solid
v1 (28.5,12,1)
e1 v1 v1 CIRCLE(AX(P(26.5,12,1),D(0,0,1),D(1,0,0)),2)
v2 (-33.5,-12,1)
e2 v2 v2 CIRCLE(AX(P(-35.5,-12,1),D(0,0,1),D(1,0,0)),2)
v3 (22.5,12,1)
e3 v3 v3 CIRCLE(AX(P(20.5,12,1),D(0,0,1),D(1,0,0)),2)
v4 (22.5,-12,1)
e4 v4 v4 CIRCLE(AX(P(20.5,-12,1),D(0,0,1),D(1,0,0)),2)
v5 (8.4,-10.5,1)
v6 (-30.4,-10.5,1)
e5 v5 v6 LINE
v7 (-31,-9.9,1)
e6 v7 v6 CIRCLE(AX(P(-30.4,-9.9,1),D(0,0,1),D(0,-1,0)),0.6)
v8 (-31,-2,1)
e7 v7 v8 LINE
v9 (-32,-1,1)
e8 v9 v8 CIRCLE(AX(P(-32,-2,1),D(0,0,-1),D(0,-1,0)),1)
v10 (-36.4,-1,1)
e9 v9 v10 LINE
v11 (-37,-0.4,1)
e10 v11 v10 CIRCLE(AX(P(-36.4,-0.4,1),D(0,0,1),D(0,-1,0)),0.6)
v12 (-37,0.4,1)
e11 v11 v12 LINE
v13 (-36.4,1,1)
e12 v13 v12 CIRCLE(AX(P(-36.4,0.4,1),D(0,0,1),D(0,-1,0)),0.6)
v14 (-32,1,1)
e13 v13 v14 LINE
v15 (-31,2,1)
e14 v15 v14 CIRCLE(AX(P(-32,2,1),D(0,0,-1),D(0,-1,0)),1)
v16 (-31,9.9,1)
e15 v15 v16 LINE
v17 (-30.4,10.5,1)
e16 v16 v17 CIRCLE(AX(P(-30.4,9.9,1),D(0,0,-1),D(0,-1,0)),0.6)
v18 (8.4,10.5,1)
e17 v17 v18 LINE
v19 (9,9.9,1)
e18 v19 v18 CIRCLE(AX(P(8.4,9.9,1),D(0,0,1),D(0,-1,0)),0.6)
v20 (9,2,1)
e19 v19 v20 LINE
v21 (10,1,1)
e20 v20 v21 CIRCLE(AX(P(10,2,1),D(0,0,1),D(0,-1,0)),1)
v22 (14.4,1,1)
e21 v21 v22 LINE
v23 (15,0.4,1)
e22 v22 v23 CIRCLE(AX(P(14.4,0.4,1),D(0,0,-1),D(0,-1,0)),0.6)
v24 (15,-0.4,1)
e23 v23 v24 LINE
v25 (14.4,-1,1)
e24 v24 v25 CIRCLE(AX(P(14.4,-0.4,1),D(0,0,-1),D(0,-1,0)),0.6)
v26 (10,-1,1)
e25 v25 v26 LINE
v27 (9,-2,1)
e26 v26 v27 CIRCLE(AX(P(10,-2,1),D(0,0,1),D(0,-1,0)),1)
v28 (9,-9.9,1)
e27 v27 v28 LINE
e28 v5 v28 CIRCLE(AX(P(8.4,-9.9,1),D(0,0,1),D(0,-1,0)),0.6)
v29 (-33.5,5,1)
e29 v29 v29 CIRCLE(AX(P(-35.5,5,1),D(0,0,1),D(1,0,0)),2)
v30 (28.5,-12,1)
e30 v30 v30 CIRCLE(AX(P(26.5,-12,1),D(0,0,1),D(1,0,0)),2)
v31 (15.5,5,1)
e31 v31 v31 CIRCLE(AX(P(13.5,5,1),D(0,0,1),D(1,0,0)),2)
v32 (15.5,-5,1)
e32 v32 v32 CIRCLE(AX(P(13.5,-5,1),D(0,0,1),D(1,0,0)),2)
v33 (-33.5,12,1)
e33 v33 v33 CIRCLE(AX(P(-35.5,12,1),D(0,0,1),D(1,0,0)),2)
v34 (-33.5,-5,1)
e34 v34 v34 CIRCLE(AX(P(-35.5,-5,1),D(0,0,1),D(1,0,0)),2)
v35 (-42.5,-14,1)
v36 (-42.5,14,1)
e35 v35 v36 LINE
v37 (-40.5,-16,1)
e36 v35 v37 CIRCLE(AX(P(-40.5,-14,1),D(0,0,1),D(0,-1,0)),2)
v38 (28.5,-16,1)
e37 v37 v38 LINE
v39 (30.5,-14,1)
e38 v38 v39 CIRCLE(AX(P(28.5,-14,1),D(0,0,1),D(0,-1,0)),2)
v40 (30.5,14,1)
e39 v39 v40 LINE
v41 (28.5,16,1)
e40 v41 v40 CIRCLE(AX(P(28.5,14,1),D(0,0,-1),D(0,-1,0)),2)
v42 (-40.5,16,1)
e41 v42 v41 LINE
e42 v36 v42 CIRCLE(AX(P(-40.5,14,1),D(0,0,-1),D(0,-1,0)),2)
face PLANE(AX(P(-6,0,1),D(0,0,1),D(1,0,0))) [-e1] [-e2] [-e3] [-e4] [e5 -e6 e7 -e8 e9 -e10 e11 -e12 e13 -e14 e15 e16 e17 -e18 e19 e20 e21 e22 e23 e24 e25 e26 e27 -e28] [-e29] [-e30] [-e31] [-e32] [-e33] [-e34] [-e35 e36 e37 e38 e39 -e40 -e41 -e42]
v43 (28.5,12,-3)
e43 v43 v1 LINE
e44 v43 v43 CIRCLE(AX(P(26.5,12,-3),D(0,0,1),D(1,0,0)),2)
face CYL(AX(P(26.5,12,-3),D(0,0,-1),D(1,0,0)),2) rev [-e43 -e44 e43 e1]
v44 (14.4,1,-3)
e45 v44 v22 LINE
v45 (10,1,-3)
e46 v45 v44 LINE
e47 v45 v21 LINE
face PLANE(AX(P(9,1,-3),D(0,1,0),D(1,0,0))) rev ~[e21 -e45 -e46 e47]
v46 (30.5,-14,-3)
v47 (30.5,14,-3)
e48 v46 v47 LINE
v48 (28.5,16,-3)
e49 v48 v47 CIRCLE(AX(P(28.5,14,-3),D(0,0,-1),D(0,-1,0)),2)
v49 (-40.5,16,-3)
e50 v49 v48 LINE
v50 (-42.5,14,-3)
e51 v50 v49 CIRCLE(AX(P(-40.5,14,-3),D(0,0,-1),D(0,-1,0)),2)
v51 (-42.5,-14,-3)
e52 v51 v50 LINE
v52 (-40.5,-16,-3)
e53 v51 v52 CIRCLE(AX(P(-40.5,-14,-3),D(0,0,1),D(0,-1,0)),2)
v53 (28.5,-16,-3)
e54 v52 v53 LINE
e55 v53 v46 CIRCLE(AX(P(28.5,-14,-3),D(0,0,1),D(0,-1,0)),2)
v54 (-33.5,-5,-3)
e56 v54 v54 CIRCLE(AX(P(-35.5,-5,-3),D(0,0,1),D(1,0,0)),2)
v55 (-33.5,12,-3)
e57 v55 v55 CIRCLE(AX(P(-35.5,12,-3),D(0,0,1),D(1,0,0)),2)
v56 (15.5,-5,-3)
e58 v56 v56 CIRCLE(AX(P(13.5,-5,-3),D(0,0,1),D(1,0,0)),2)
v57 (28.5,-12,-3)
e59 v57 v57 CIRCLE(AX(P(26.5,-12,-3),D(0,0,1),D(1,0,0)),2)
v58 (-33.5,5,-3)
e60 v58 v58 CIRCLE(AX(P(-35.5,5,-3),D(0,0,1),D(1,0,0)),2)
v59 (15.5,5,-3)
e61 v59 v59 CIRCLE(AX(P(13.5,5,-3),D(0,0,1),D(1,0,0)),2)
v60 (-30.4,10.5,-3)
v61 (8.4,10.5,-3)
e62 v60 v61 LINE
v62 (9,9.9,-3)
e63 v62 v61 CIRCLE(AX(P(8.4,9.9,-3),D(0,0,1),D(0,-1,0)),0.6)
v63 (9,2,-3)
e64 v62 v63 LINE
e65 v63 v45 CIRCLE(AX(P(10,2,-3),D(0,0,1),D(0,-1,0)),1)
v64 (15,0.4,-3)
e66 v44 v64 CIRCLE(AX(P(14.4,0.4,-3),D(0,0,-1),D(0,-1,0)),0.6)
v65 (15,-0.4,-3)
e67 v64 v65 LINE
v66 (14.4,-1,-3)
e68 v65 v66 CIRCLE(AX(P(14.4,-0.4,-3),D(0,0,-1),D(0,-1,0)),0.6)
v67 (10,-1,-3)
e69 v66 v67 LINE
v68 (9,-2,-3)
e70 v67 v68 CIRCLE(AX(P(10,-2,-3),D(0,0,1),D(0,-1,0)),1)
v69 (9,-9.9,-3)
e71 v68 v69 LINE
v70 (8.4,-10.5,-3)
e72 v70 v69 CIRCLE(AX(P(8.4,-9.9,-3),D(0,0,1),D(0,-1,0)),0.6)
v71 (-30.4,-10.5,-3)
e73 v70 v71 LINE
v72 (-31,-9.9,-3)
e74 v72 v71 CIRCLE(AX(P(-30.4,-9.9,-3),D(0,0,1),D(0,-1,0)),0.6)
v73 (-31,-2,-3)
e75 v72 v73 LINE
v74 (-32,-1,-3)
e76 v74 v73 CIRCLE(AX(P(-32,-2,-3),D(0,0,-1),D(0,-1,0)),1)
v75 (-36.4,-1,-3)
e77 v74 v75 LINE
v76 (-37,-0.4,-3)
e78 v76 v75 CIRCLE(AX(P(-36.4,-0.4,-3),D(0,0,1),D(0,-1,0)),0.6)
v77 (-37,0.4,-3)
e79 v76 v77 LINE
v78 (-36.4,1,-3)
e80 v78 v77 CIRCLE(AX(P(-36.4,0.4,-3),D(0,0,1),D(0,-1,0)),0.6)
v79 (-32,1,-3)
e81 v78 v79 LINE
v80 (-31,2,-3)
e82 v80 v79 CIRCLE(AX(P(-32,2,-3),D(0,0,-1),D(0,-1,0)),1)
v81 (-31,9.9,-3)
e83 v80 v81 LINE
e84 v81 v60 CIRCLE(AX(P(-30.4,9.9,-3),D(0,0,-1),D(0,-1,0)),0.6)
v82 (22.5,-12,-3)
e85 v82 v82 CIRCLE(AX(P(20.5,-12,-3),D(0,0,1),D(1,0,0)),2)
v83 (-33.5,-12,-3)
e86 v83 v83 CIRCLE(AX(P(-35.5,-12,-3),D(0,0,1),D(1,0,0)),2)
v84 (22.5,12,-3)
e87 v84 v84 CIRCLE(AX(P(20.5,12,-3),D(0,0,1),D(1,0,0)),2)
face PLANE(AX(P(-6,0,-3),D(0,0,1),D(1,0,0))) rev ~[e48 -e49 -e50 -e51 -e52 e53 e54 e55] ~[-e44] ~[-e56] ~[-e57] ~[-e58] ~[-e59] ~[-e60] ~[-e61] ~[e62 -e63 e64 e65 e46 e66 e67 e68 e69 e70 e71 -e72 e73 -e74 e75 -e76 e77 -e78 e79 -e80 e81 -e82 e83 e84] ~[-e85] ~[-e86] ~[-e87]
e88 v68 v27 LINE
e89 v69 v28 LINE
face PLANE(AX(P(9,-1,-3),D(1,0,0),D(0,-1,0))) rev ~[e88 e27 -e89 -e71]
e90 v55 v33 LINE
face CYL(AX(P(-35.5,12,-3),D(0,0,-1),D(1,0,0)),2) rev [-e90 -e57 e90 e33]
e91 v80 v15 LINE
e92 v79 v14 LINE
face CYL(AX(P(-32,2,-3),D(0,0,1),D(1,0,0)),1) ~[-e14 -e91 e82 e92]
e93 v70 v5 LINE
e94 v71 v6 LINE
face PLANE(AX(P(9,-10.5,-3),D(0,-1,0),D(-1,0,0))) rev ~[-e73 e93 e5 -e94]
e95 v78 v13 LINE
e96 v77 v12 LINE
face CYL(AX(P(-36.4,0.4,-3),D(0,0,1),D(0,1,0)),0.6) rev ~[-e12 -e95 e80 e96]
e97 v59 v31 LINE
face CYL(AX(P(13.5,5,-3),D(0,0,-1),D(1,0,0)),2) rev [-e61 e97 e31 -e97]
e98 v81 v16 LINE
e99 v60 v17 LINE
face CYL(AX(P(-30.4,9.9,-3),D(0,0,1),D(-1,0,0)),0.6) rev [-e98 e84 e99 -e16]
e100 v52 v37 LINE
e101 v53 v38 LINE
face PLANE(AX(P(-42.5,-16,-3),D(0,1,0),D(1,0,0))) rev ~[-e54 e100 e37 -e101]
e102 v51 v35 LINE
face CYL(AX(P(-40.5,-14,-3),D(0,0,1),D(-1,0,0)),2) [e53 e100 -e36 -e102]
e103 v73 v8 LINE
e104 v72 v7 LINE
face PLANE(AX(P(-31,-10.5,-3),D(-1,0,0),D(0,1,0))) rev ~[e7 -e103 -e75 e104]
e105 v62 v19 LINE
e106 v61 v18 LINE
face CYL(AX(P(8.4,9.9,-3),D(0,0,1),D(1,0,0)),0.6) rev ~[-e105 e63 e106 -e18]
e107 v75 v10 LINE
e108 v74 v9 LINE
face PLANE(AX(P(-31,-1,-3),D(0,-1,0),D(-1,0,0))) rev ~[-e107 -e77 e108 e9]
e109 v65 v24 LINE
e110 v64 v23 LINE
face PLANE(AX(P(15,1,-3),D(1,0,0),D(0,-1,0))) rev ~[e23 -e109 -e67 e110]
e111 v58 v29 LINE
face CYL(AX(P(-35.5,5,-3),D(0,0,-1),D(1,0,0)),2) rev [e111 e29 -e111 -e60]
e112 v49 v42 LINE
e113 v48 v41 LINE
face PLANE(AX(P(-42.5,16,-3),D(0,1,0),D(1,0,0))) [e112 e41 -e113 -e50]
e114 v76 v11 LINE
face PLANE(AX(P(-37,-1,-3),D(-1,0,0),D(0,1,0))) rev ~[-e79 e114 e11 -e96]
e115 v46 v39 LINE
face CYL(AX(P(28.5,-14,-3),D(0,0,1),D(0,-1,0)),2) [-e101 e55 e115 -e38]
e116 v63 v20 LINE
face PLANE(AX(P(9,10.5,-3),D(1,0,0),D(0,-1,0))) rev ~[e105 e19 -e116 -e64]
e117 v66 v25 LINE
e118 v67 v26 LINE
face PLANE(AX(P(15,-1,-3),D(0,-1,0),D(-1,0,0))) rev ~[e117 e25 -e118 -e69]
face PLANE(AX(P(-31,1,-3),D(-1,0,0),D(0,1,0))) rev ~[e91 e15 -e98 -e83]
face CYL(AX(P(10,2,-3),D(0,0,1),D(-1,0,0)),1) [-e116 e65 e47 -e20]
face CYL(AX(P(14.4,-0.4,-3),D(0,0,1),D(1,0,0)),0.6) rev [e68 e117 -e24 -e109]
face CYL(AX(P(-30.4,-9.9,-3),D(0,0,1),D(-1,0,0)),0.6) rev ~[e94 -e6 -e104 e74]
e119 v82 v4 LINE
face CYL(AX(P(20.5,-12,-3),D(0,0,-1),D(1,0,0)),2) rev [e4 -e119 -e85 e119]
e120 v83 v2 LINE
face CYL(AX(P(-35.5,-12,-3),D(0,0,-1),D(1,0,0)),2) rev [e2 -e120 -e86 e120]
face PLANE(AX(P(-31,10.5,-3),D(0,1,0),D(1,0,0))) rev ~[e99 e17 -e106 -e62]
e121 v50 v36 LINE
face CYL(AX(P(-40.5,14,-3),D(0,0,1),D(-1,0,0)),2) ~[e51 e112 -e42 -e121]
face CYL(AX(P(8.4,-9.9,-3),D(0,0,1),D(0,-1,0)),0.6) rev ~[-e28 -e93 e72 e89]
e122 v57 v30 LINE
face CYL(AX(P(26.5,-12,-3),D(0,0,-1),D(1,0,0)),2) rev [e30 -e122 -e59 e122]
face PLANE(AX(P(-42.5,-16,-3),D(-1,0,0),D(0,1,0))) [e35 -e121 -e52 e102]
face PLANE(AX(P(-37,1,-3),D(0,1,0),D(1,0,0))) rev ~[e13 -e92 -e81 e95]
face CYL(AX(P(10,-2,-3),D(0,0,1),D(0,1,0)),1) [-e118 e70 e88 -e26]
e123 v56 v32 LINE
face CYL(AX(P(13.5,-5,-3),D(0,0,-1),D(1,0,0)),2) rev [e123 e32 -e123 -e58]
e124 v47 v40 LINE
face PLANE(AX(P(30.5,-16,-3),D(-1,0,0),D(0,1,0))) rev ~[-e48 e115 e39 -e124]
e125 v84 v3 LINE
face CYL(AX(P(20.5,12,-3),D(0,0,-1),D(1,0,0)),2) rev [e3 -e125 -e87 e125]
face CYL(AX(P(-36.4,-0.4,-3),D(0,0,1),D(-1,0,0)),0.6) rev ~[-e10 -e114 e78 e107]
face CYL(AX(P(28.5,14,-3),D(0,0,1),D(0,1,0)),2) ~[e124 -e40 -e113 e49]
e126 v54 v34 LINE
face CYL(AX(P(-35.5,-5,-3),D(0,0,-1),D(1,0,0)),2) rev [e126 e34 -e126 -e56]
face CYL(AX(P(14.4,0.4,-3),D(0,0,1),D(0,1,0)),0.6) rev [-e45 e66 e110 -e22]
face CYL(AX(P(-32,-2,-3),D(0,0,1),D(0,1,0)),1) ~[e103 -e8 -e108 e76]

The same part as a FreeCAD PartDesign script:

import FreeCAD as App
import Part
import Sketcher
from FreeCAD import Vector


def edges_at(feature, points):
    """Names of the edges that pass closest to the given points."""
    edges = feature.Shape.Edges
    near = lambda p: min(range(len(edges)), key=lambda i: edges[i].distToShape(Part.Vertex(*p))[0])
    return sorted({f"Edge{near(p) + 1}" for p in points})

doc = App.newDocument("Part")
params = doc.addObject("Spreadsheet::Sheet", "Params")
for row, (alias, value) in enumerate([
    ("sketch1_diameter", "4 mm"),
    ("sketch1_width", "73 mm"),
    ("sketch1_width2", "40 mm"),
    ("sketch1_width3", "6 mm"),
    ("sketch1_height", "32 mm"),
    ("pad1_length", "4 mm"),
    ("fillet_radius", "0.6 mm"),
    ("fillet2_radius", "1 mm"),
    ("fillet3_radius", "0.6 mm"),
    ("fillet4_radius", "2 mm"),
], start=1):
    params.set(f"A{row}", alias)
    params.set(f"B{row}", "=" + value)
    params.setAlias(f"B{row}", alias)

body = doc.addObject("PartDesign::Body", "Body")

# Sketch on XY plane
sketch1 = body.newObject("Sketcher::SketchObject", "Sketch")
sketch1.AttachmentSupport = (doc.getObject("XY_Plane"), [""])
sketch1.MapMode = "FlatFace"
sketch1.AttachmentOffset = App.Placement(Vector(0, 0, -3), App.Rotation())
sketch1.addGeometry(Part.LineSegment(Vector(-42.5, 16, 0), Vector(-42.5, -16, 0)), False)
sketch1.addGeometry(Part.LineSegment(Vector(-42.5, -16, 0), Vector(30.5, -16, 0)), False)
sketch1.addGeometry(Part.LineSegment(Vector(30.5, -16, 0), Vector(30.5, 16, 0)), False)
sketch1.addGeometry(Part.LineSegment(Vector(30.5, 16, 0), Vector(-42.5, 16, 0)), False)
sketch1.addGeometry(Part.Circle(Vector(-35.5, -12, 0), Vector(0, 0, 1), 2), False)
sketch1.addGeometry(Part.Circle(Vector(-35.5, -5, 0), Vector(0, 0, 1), 2), False)
sketch1.addGeometry(Part.Circle(Vector(20.5, -12, 0), Vector(0, 0, 1), 2), False)
sketch1.addGeometry(Part.Circle(Vector(26.5, -12, 0), Vector(0, 0, 1), 2), False)
sketch1.addGeometry(Part.Circle(Vector(13.5, -5, 0), Vector(0, 0, 1), 2), False)
sketch1.addGeometry(Part.Circle(Vector(-35.5, 5, 0), Vector(0, 0, 1), 2), False)
sketch1.addGeometry(Part.LineSegment(Vector(-31, 1, 0), Vector(-31, 10.5, 0)), False)
sketch1.addGeometry(Part.LineSegment(Vector(-31, 10.5, 0), Vector(9, 10.5, 0)), False)
sketch1.addGeometry(Part.LineSegment(Vector(9, 10.5, 0), Vector(9, 1, 0)), False)
sketch1.addGeometry(Part.LineSegment(Vector(9, 1, 0), Vector(15, 1, 0)), False)
sketch1.addGeometry(Part.LineSegment(Vector(15, 1, 0), Vector(15, -1, 0)), False)
sketch1.addGeometry(Part.LineSegment(Vector(15, -1, 0), Vector(9, -1, 0)), False)
sketch1.addGeometry(Part.LineSegment(Vector(9, -1, 0), Vector(9, -10.5, 0)), False)
sketch1.addGeometry(Part.LineSegment(Vector(9, -10.5, 0), Vector(-31, -10.5, 0)), False)
sketch1.addGeometry(Part.LineSegment(Vector(-31, -10.5, 0), Vector(-31, -1, 0)), False)
sketch1.addGeometry(Part.LineSegment(Vector(-31, -1, 0), Vector(-37, -1, 0)), False)
sketch1.addGeometry(Part.LineSegment(Vector(-37, -1, 0), Vector(-37, 1, 0)), False)
sketch1.addGeometry(Part.LineSegment(Vector(-37, 1, 0), Vector(-31, 1, 0)), False)
sketch1.addGeometry(Part.Circle(Vector(-35.5, 12, 0), Vector(0, 0, 1), 2), False)
sketch1.addGeometry(Part.Circle(Vector(13.5, 5, 0), Vector(0, 0, 1), 2), False)
sketch1.addGeometry(Part.Circle(Vector(20.5, 12, 0), Vector(0, 0, 1), 2), False)
sketch1.addGeometry(Part.Circle(Vector(26.5, 12, 0), Vector(0, 0, 1), 2), False)
sketch1.addConstraint(Sketcher.Constraint("Coincident", 0, 2, 1, 1))
sketch1.addConstraint(Sketcher.Constraint("Coincident", 1, 2, 2, 1))
sketch1.addConstraint(Sketcher.Constraint("Coincident", 2, 2, 3, 1))
sketch1.addConstraint(Sketcher.Constraint("Coincident", 3, 2, 0, 1))
sketch1.addConstraint(Sketcher.Constraint("Coincident", 10, 2, 11, 1))
sketch1.addConstraint(Sketcher.Constraint("Coincident", 11, 2, 12, 1))
sketch1.addConstraint(Sketcher.Constraint("Coincident", 12, 2, 13, 1))
sketch1.addConstraint(Sketcher.Constraint("Coincident", 13, 2, 14, 1))
sketch1.addConstraint(Sketcher.Constraint("Coincident", 14, 2, 15, 1))
sketch1.addConstraint(Sketcher.Constraint("Coincident", 15, 2, 16, 1))
sketch1.addConstraint(Sketcher.Constraint("Coincident", 16, 2, 17, 1))
sketch1.addConstraint(Sketcher.Constraint("Coincident", 17, 2, 18, 1))
sketch1.addConstraint(Sketcher.Constraint("Coincident", 18, 2, 19, 1))
sketch1.addConstraint(Sketcher.Constraint("Coincident", 19, 2, 20, 1))
sketch1.addConstraint(Sketcher.Constraint("Coincident", 20, 2, 21, 1))
sketch1.addConstraint(Sketcher.Constraint("Coincident", 21, 2, 10, 1))
sketch1.addConstraint(Sketcher.Constraint("Vertical", 0))
sketch1.addConstraint(Sketcher.Constraint("Horizontal", 1))
sketch1.addConstraint(Sketcher.Constraint("Vertical", 2))
sketch1.addConstraint(Sketcher.Constraint("Horizontal", 3))
sketch1.addConstraint(Sketcher.Constraint("Vertical", 10))
sketch1.addConstraint(Sketcher.Constraint("Horizontal", 11))
sketch1.addConstraint(Sketcher.Constraint("Vertical", 12))
sketch1.addConstraint(Sketcher.Constraint("Horizontal", 13))
sketch1.addConstraint(Sketcher.Constraint("Vertical", 14))
sketch1.addConstraint(Sketcher.Constraint("Horizontal", 15))
sketch1.addConstraint(Sketcher.Constraint("Vertical", 16))
sketch1.addConstraint(Sketcher.Constraint("Horizontal", 17))
sketch1.addConstraint(Sketcher.Constraint("Vertical", 18))
sketch1.addConstraint(Sketcher.Constraint("Horizontal", 19))
sketch1.addConstraint(Sketcher.Constraint("Vertical", 20))
sketch1.addConstraint(Sketcher.Constraint("Horizontal", 21))
sketch1.addConstraint(Sketcher.Constraint("Equal", 4, 5))
sketch1.addConstraint(Sketcher.Constraint("Equal", 5, 6))
sketch1.addConstraint(Sketcher.Constraint("Equal", 6, 7))
sketch1.addConstraint(Sketcher.Constraint("Equal", 7, 8))
sketch1.addConstraint(Sketcher.Constraint("Equal", 8, 9))
sketch1.addConstraint(Sketcher.Constraint("Equal", 9, 22))
sketch1.addConstraint(Sketcher.Constraint("Equal", 22, 23))
sketch1.addConstraint(Sketcher.Constraint("Equal", 23, 24))
sketch1.addConstraint(Sketcher.Constraint("Equal", 24, 25))
sketch1.addConstraint(Sketcher.Constraint("Symmetric", 5, 3, 9, 3, -1))
sketch1.addConstraint(Sketcher.Constraint("Symmetric", 4, 3, 22, 3, -1))
sketch1.addConstraint(Sketcher.Constraint("Symmetric", 8, 3, 23, 3, -1))
sketch1.addConstraint(Sketcher.Constraint("Symmetric", 6, 3, 24, 3, -1))
sketch1.addConstraint(Sketcher.Constraint("Symmetric", 7, 3, 25, 3, -1))
sketch1.addConstraint(Sketcher.Constraint("Symmetric", 12, 2, 15, 2, -1))
sketch1.addConstraint(Sketcher.Constraint("Symmetric", 10, 2, 17, 2, -1))
sketch1.addConstraint(Sketcher.Constraint("Horizontal", 4, 3, 6, 3))
sketch1.addConstraint(Sketcher.Constraint("Horizontal", 6, 3, 7, 3))
sketch1.addConstraint(Sketcher.Constraint("Horizontal", 5, 3, 8, 3))
sketch1.addConstraint(Sketcher.Constraint("Horizontal", 15, 2, 18, 2))
sketch1.addConstraint(Sketcher.Constraint("Horizontal", 13, 2, 20, 2))
sketch1.addConstraint(Sketcher.Constraint("Vertical", 4, 3, 5, 3))
sketch1.addConstraint(Sketcher.Constraint("Equal", 15, 19))
sketch1.addConstraint(Sketcher.Constraint("Diameter", 4, 4.0))
sketch1.addConstraint(Sketcher.Constraint("DistanceX", 1, 1, 1, 2, 73.0))
sketch1.addConstraint(Sketcher.Constraint("DistanceX", 11, 1, 11, 2, 40.0))
sketch1.addConstraint(Sketcher.Constraint("DistanceX", 13, 1, 13, 2, 6.0))
sketch1.addConstraint(Sketcher.Constraint("DistanceY", 0, 2, 0, 1, 32.0))
sketch1.addConstraint(Sketcher.Constraint("DistanceY", 14, 2, 14, 1, 2.0))
sketch1.addConstraint(Sketcher.Constraint("DistanceY", 10, 1, 10, 2, 9.5))
sketch1.addConstraint(Sketcher.Constraint("DistanceY", 4, 3, -1, 1, 12.0))
sketch1.addConstraint(Sketcher.Constraint("DistanceY", 5, 3, -1, 1, 5.0))
sketch1.addConstraint(Sketcher.Constraint("DistanceY", 0, 2, -1, 1, 16.0))
sketch1.addConstraint(Sketcher.Constraint("DistanceX", 10, 2, -1, 1, 31.0))
sketch1.addConstraint(Sketcher.Constraint("DistanceX", 4, 3, 6, 3, 56.0))
sketch1.addConstraint(Sketcher.Constraint("DistanceX", 6, 3, 7, 3, 6.0))
sketch1.addConstraint(Sketcher.Constraint("DistanceX", 8, 3, 6, 3, 7.0))
sketch1.addConstraint(Sketcher.Constraint("DistanceX", 0, 2, 4, 3, 7.0))
sketch1.addConstraint(Sketcher.Constraint("DistanceX", 4, 3, -1, 1, 35.5))
sketch1.setExpression("Constraints[55]", "Params.sketch1_diameter")
sketch1.setExpression("Constraints[56]", "Params.sketch1_width")
sketch1.setExpression("Constraints[57]", "Params.sketch1_width2")
sketch1.setExpression("Constraints[58]", "Params.sketch1_width3")
sketch1.setExpression("Constraints[59]", "Params.sketch1_height")
pad1 = body.newObject("PartDesign::Pad", "Pad")
pad1.Profile = sketch1
pad1.setExpression("Length", "Params.pad1_length")
doc.recompute()

fillet = body.newObject("PartDesign::Fillet", "Fillet")
fillet.Base = (pad1, edges_at(pad1, [
    (9, -10.5, -1),
    (9, 10.5, -1),
    (-31, 10.5, -1),
    (-31, -10.5, -1),
]))
fillet.setExpression("Radius", "Params.fillet_radius")
doc.recompute()

fillet2 = body.newObject("PartDesign::Fillet", "Fillet001")
fillet2.Base = (fillet, edges_at(fillet, [
    (-31, -1, -1),
    (-31, 1, -1),
    (9, -1, -1),
    (9, 1, -1),
]))
fillet2.setExpression("Radius", "Params.fillet2_radius")
doc.recompute()

fillet3 = body.newObject("PartDesign::Fillet", "Fillet002")
fillet3.Base = (fillet2, edges_at(fillet2, [
    (-37, -1, -1),
    (-37, 1, -1),
    (15, -1, -1),
    (15, 1, -1),
]))
fillet3.setExpression("Radius", "Params.fillet3_radius")
doc.recompute()

fillet4 = body.newObject("PartDesign::Fillet", "Fillet003")
fillet4.Base = (fillet3, edges_at(fillet3, [
    (30.5, 16, -1),
    (30.5, -16, -1),
    (-42.5, 16, -1),
    (-42.5, -16, -1),
]))
fillet4.setExpression("Radius", "Params.fillet4_radius")

doc.recompute()
